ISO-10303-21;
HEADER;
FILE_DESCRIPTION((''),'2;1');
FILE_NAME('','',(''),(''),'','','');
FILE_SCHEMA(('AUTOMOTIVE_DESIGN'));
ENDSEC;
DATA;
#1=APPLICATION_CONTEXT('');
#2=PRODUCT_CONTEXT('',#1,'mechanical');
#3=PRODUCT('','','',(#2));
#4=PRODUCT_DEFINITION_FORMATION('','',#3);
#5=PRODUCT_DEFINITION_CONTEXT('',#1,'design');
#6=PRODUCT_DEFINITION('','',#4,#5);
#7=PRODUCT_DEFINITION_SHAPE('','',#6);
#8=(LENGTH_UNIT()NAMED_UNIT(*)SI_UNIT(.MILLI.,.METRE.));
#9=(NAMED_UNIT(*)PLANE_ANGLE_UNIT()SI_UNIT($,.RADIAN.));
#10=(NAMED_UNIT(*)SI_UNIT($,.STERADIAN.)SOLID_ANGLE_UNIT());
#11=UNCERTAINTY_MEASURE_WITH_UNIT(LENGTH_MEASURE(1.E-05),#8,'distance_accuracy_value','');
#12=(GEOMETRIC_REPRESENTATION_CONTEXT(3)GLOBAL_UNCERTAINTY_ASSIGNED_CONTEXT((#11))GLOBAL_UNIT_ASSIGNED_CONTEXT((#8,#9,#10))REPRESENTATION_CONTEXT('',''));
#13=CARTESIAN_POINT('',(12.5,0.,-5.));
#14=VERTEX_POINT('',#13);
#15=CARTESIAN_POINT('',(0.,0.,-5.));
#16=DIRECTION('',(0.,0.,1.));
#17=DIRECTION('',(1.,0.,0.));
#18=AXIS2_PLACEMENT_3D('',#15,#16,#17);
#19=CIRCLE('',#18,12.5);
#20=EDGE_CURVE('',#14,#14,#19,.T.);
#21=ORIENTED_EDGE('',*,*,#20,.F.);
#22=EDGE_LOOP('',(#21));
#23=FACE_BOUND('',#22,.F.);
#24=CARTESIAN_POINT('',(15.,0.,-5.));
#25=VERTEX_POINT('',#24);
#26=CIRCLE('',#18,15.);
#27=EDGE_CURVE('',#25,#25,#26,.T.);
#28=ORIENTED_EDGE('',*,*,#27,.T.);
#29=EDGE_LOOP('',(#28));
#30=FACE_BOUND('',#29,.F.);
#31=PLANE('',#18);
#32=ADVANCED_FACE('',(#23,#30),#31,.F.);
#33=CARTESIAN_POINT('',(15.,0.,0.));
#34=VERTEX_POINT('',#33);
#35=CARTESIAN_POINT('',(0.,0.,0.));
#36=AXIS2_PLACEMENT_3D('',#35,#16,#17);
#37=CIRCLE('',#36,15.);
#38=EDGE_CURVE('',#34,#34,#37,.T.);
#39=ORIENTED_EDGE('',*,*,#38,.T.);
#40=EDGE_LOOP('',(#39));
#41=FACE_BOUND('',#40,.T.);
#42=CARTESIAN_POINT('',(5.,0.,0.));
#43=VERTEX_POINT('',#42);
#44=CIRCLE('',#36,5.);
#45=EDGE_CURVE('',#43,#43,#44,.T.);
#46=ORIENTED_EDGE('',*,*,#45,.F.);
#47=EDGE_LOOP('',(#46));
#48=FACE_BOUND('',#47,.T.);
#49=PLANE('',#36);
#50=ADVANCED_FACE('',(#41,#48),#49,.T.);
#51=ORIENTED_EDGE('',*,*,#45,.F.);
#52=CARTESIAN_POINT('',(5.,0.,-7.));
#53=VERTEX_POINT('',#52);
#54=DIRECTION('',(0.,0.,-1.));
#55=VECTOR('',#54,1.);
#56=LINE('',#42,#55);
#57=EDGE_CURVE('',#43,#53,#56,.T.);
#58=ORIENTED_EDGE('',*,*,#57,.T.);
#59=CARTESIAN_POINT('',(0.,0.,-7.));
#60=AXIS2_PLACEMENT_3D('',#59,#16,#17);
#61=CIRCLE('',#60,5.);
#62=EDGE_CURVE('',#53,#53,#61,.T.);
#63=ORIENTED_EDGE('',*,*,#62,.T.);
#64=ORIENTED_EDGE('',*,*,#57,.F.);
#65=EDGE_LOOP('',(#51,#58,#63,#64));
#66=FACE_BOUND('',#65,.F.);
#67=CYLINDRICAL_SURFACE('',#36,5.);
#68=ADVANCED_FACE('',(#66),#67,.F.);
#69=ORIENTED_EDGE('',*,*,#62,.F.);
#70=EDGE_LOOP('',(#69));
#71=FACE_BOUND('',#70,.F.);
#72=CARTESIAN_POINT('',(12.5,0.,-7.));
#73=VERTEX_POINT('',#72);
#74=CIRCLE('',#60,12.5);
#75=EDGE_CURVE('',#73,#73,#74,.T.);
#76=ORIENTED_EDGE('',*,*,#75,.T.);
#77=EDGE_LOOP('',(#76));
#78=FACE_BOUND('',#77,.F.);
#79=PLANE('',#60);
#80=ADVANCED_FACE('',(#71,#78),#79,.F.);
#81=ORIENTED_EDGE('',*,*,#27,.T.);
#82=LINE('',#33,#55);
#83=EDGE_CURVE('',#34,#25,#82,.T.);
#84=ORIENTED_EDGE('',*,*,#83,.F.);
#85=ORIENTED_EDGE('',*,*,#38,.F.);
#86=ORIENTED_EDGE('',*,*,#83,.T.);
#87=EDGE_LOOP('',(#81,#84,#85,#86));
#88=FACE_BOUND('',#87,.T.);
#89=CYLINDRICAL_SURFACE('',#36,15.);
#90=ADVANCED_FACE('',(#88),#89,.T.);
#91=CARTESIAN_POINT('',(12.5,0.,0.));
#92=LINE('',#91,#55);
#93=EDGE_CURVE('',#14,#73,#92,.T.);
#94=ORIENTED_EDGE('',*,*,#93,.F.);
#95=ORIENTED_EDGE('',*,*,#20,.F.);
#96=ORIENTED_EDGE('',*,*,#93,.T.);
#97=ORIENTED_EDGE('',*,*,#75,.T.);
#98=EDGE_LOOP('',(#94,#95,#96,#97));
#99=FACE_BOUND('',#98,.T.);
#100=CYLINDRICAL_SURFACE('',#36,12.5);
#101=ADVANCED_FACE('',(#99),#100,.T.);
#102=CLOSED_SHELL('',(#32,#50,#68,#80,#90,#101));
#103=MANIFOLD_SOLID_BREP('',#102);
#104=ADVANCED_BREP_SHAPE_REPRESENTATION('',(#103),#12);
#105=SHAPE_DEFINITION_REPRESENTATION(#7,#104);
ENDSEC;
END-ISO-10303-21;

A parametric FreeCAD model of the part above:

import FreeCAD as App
import Part
import Sketcher
Q = App.Units.Quantity

doc = App.newDocument("Part")
params = doc.addObject("Spreadsheet::Sheet", "Params")
for row, (alias, value) in enumerate([
    ("sketch1_diameter", "30 mm"),
    ("pad1_length", "5 mm"),
    ("sketch2_diameter", "25 mm"),
    ("pad2_length", "7 mm"),
    ("sketch3_diameter", "10 mm"),
    ("pocket1_length", "7 mm"),
], start=1):
    params.set(f"A{row}", alias)
    params.set(f"B{row}", "=" + value)
    params.setAlias(f"B{row}", alias)

body = doc.addObject("PartDesign::Body", "Body")

# Sketch on XY plane
sketch1 = body.newObject("Sketcher::SketchObject", "Sketch")
sketch1.AttachmentSupport = (doc.getObject("XY_Plane"), [""])
sketch1.MapMode = "FlatFace"
sketch1.addGeometry(Part.Circle(App.Vector(0, 0, 0), App.Vector(0, 0, 1), 15), False)
sketch1.addConstraint([
    Sketcher.Constraint("Coincident", 0, 3, -1, 1),
    Sketcher.Constraint("Diameter", 0, Q("30 mm")),
])
sketch1.setExpression("Constraints[1]", "Params.sketch1_diameter")
pad1 = body.newObject("PartDesign::Pad", "Pad")
pad1.Profile = sketch1
pad1.setExpression("Length", "Params.pad1_length")
pad1.Reversed = True

# Sketch on XY plane
sketch2 = body.newObject("Sketcher::SketchObject", "Sketch001")
sketch2.AttachmentSupport = (doc.getObject("XY_Plane"), [""])
sketch2.MapMode = "FlatFace"
sketch2.addGeometry(Part.Circle(App.Vector(0, 0, 0), App.Vector(0, 0, 1), 12.5), False)
sketch2.addConstraint([
    Sketcher.Constraint("Coincident", 0, 3, -1, 1),
    Sketcher.Constraint("Diameter", 0, Q("25 mm")),
])
sketch2.setExpression("Constraints[1]", "Params.sketch2_diameter")
pad2 = body.newObject("PartDesign::Pad", "Pad001")
pad2.Profile = sketch2
pad2.setExpression("Length", "Params.pad2_length")
pad2.Reversed = True

# Sketch on XY plane
sketch3 = body.newObject("Sketcher::SketchObject", "Sketch002")
sketch3.AttachmentSupport = (doc.getObject("XY_Plane"), [""])
sketch3.MapMode = "FlatFace"
sketch3.addGeometry(Part.Circle(App.Vector(0, 0, 0), App.Vector(0, 0, 1), 5), False)
sketch3.addConstraint([
    Sketcher.Constraint("Coincident", 0, 3, -1, 1),
    Sketcher.Constraint("Diameter", 0, Q("10 mm")),
])
sketch3.setExpression("Constraints[1]", "Params.sketch3_diameter")
pocket1 = body.newObject("PartDesign::Pocket", "Pocket")
pocket1.Profile = sketch3
pocket1.setExpression("Length", "Params.pocket1_length")

doc.recompute()
